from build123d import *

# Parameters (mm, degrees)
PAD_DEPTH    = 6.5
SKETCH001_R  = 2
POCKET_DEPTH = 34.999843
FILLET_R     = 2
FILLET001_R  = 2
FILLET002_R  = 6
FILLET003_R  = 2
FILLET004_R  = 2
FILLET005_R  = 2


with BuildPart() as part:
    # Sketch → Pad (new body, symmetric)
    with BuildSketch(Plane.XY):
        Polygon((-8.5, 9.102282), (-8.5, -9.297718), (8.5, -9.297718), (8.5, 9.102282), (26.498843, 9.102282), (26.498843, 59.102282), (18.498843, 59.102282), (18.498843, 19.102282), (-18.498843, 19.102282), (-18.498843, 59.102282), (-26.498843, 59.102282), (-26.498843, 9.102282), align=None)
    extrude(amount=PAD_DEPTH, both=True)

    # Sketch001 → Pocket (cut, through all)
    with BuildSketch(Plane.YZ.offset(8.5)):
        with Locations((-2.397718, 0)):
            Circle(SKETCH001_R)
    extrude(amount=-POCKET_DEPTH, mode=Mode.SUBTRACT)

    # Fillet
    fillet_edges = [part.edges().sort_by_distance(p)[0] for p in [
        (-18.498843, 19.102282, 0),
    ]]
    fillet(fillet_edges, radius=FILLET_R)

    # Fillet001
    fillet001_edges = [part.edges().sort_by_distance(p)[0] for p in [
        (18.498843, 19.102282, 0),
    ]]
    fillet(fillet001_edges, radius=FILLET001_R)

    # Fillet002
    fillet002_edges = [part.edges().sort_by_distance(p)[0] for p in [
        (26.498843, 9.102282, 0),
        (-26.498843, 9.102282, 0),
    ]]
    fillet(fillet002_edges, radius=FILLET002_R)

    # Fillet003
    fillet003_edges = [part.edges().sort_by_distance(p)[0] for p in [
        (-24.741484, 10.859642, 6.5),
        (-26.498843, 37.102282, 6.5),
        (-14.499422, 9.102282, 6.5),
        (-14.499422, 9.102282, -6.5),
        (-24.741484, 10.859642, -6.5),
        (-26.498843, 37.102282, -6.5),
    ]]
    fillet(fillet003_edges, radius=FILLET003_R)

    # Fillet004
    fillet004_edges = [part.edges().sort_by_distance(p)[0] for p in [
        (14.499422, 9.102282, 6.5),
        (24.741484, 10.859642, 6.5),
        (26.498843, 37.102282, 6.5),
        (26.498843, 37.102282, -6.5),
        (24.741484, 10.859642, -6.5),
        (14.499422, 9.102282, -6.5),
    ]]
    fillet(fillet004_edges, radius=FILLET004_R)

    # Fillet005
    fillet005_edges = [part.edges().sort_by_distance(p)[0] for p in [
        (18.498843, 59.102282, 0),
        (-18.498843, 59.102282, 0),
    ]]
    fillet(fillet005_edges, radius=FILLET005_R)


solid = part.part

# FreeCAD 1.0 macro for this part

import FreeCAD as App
import Part
import Sketcher


def edges_at(feature, points):
    """Names of the edges that pass closest to the given points."""
    edges = feature.Shape.Edges
    near = lambda p: min(range(len(edges)), key=lambda i: edges[i].distToShape(Part.Vertex(*p))[0])
    return sorted({f"Edge{near(p) + 1}" for p in points})


def add_polygon(sketch, points):
    """Adds a closed chain of lines whose ends are joined by coincident constraints."""
    first, n = sketch.GeometryCount, len(points)
    for a, b in zip(points, points[1:] + points[:1]):
        sketch.addGeometry(Part.LineSegment(App.Vector(*a, 0), App.Vector(*b, 0)), False)
    for i in range(n):
        sketch.addConstraint(Sketcher.Constraint("Coincident", first + i, 2, first + (i + 1) % n, 1))

doc = App.newDocument("Part")
body = doc.addObject("PartDesign::Body", "Body")

# Sketch on XY plane
sketch1 = doc.addObject("Sketcher::SketchObject", "Sketch")
body.addObject(sketch1)
sketch1.AttachmentSupport = (doc.XY_Plane, [""])
sketch1.MapMode = "FlatFace"
add_polygon(sketch1, [(-8, 9), (-8, -9), (8, -9), (8, 9), (26, 9), (26, 59), (18, 59), (18, 19), (-18, 19), (-18, 59), (-26, 59), (-26, 9)])  # lines 0-11
sketch1.addConstraint([
    Sketcher.Constraint("Vertical", 0),
    Sketcher.Constraint("Horizontal", 1),
    Sketcher.Constraint("Vertical", 2),
    Sketcher.Constraint("Horizontal", 3),
    Sketcher.Constraint("Vertical", 4),
    Sketcher.Constraint("Horizontal", 5),
    Sketcher.Constraint("Vertical", 6),
    Sketcher.Constraint("Horizontal", 7),
    Sketcher.Constraint("Vertical", 8),
    Sketcher.Constraint("Horizontal", 9),
    Sketcher.Constraint("Vertical", 10),
    Sketcher.Constraint("Horizontal", 11),
    Sketcher.Constraint("Symmetric", 5, 2, 8, 2, -2),
    Sketcher.Constraint("Symmetric", 3, 2, 10, 2, -2),
    Sketcher.Constraint("Equal", 3, 11),
    Sketcher.Constraint("DistanceX", 1, 1, 1, 2, 17.0),
    Sketcher.Constraint("DistanceX", 5, 2, 5, 1, 8.0),
    Sketcher.Constraint("DistanceY", 4, 1, 4, 2, 50.0),
    Sketcher.Constraint("DistanceY", 6, 2, 6, 1, 40.0),
    Sketcher.Constraint("DistanceY", 0, 2, 0, 1, 18.4),
    Sketcher.Constraint("DistanceX", 3, 1, 3, 2, 17.998843),
    Sketcher.Constraint("DistanceY", -1, 1, 6, 2, 19.102282),
])
pad1 = doc.addObject("PartDesign::Pad", "Pad")
body.addObject(pad1)
pad1.Profile = sketch1
pad1.Length = 13
pad1.Midplane = True

# Sketch on YZ plane
sketch2 = doc.addObject("Sketcher::SketchObject", "Sketch001")
body.addObject(sketch2)
sketch2.AttachmentSupport = (doc.YZ_Plane, [""])
sketch2.MapMode = "FlatFace"
sketch2.AttachmentOffset = App.Placement(App.Vector(0, 0, 8.5), App.Rotation())
sketch2.addGeometry(Part.Circle(App.Vector(-2.4, 0, 0), App.Vector(0, 0, 1), 2), False)
sketch2.addConstraint([
    Sketcher.Constraint("PointOnObject", 0, 3, -1),
    Sketcher.Constraint("Diameter", 0, 4.0),
    Sketcher.Constraint("DistanceX", 0, 3, -1, 1, 2.397718),
])
pocket1 = doc.addObject("PartDesign::Pocket", "Pocket")
body.addObject(pocket1)
pocket1.Profile = sketch2
pocket1.Type = "ThroughAll"
doc.recompute()

fillet = doc.addObject("PartDesign::Fillet", "Fillet")
body.addObject(fillet)
fillet.Base = (pocket1, edges_at(pocket1, [(-18.499, 19.102, 0)]))
fillet.Radius = 2
doc.recompute()

fillet2 = doc.addObject("PartDesign::Fillet", "Fillet001")
body.addObject(fillet2)
fillet2.Base = (fillet, edges_at(fillet, [(18.499, 19.102, 0)]))
fillet2.Radius = 2
doc.recompute()

fillet3 = doc.addObject("PartDesign::Fillet", "Fillet002")
body.addObject(fillet3)
fillet3.Base = (fillet2, edges_at(fillet2, [(26.499, 9.102, 0), (-26.499, 9.102, 0)]))
fillet3.Radius = 6
doc.recompute()

fillet4 = doc.addObject("PartDesign::Fillet", "Fillet003")
body.addObject(fillet4)
fillet4.Base = (fillet3, edges_at(fillet3, [
    (-24.741, 10.86, 6.5),
    (-26.499, 37.102, 6.5),
    (-14.499, 9.102, 6.5),
    (-14.499, 9.102, -6.5),
    (-24.741, 10.86, -6.5),
    (-26.499, 37.102, -6.5),
]))
fillet4.Radius = 2
doc.recompute()

fillet5 = doc.addObject("PartDesign::Fillet", "Fillet004")
body.addObject(fillet5)
fillet5.Base = (fillet4, edges_at(fillet4, [
    (14.499, 9.102, 6.5),
    (24.741, 10.86, 6.5),
    (26.499, 37.102, 6.5),
    (26.499, 37.102, -6.5),
    (24.741, 10.86, -6.5),
    (14.499, 9.102, -6.5),
]))
fillet5.Radius = 2
doc.recompute()

fillet6 = doc.addObject("PartDesign::Fillet", "Fillet005")
body.addObject(fillet6)
fillet6.Base = (fillet5, edges_at(fillet5, [(18.499, 59.102, 0), (-18.499, 59.102, 0)]))
fillet6.Radius = 2

doc.recompute()
